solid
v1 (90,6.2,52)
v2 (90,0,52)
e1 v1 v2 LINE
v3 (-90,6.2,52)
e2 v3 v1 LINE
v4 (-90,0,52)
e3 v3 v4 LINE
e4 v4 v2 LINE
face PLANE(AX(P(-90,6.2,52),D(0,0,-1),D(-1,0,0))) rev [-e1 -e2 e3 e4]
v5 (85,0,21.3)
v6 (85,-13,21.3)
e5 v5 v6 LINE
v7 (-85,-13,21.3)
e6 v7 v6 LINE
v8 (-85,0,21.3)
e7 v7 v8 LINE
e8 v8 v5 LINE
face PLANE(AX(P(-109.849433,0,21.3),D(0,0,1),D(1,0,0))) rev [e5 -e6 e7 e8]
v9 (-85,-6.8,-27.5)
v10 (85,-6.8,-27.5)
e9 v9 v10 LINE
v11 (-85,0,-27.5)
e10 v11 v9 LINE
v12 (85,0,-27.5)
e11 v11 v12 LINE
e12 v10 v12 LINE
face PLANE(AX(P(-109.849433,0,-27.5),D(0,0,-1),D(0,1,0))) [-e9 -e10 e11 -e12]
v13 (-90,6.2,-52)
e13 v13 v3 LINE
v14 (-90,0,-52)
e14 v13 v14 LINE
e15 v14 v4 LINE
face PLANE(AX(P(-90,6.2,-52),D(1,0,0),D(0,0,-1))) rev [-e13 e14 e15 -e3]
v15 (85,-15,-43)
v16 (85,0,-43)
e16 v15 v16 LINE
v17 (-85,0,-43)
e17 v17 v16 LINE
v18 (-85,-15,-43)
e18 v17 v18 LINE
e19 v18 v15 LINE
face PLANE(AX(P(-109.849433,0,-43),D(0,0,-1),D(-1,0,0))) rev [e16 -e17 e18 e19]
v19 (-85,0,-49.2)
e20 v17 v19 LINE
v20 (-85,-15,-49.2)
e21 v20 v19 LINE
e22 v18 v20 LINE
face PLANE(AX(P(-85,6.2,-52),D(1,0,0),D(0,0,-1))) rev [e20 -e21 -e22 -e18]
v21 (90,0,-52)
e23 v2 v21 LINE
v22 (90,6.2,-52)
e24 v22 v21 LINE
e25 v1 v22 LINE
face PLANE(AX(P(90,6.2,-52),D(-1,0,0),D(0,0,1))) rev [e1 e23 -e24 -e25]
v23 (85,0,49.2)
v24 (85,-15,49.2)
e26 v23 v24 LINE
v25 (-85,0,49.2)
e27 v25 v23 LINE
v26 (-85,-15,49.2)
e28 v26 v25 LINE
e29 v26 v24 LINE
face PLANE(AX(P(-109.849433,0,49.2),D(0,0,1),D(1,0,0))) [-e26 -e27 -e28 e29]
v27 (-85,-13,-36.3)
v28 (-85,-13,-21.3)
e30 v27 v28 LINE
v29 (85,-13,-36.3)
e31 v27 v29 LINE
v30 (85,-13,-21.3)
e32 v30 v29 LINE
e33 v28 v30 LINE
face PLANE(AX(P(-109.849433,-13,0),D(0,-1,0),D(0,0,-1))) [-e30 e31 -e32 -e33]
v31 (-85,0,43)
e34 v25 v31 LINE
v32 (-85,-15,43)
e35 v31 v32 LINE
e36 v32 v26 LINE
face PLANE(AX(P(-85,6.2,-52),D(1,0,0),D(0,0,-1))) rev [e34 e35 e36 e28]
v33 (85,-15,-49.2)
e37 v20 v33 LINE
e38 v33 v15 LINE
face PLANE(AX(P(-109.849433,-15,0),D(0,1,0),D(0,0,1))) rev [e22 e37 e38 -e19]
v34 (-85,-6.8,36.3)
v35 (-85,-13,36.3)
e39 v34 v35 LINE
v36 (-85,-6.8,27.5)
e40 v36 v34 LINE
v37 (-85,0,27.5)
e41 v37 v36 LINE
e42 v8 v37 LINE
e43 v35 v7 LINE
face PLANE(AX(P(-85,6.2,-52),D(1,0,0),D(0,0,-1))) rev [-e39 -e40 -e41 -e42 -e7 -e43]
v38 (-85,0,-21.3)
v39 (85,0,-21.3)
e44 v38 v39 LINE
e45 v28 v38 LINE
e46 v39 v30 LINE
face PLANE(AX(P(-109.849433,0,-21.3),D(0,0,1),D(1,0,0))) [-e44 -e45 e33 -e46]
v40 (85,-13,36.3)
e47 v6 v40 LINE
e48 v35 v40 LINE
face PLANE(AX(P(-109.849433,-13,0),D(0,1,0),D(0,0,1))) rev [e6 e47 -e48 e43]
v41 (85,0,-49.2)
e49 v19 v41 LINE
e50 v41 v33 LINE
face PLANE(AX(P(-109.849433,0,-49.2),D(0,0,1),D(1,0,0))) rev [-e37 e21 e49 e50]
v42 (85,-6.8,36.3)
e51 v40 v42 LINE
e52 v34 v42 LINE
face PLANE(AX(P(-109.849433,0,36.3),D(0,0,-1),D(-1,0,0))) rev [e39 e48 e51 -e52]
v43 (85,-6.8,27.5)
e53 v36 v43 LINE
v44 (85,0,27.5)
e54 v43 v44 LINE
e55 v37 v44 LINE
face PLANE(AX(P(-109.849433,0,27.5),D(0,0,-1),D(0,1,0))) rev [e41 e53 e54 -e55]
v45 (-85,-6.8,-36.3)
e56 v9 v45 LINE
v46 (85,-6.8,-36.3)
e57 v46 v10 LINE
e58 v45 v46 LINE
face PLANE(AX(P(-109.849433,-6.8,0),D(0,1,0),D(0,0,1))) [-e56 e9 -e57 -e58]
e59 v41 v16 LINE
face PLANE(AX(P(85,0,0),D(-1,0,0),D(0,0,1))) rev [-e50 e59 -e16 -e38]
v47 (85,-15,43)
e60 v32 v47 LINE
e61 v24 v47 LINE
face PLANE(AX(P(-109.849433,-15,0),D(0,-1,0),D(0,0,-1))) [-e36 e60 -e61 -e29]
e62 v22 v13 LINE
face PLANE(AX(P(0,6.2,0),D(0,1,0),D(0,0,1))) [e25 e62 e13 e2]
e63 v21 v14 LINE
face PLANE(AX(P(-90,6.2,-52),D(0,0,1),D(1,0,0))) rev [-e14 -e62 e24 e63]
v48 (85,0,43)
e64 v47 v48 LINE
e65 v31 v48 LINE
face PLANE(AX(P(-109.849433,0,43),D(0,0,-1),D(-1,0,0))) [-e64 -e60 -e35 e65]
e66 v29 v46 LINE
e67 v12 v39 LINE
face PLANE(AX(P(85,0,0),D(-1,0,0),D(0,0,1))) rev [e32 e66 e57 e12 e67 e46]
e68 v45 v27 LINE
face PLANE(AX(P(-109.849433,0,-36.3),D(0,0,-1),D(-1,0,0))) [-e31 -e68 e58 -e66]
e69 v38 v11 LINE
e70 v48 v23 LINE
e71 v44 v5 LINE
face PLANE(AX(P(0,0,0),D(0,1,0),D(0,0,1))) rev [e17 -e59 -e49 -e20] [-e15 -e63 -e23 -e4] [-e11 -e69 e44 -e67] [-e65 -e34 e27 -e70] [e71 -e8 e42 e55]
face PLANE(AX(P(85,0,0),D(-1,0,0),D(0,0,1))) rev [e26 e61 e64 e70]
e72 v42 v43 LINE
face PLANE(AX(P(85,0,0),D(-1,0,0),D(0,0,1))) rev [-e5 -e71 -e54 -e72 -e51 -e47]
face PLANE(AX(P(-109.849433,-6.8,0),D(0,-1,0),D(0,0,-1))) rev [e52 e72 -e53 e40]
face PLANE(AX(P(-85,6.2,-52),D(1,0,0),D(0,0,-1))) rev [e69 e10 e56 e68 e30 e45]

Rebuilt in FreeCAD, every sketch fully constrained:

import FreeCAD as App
import Part
import Sketcher

V = App.Vector


def add_polygon(sketch, points):
    """Adds a closed chain of lines whose ends are joined by coincident constraints."""
    first, n = sketch.GeometryCount, len(points)
    for a, b in zip(points, points[1:] + points[:1]):
        sketch.addGeometry(Part.LineSegment(App.Vector(*a, 0), App.Vector(*b, 0)), False)
    for i in range(n):
        sketch.addConstraint(Sketcher.Constraint("Coincident", first + i, 2, first + (i + 1) % n, 1))

doc = App.newDocument("Part")
params = doc.addObject("Spreadsheet::Sheet", "Params")
for row, (alias, value) in enumerate([
    ("sketch1_width", "180 mm"),
    ("sketch1_height", "104 mm"),
    ("pad1_length", "6.2 mm"),
    ("sketch2_width", "15 mm"),
    ("sketch2_width2", "13 mm"),
    ("sketch2_width3", "6.8 mm"),
    ("pad2_length", "170 mm"),
], start=1):
    params.set(f"A{row}", alias)
    params.set(f"B{row}", "=" + value)
    params.setAlias(f"B{row}", alias)

body = doc.addObject("PartDesign::Body", "Body")

sketch1 = doc.addObject("Sketcher::SketchObject", "Sketch")
body.addObject(sketch1)
sketch1.AttachmentSupport = (doc.XZ_Plane, [""])
sketch1.MapMode = "FlatFace"
add_polygon(sketch1, [(-90, -52), (-90, 52), (90, 52), (90, -52)])
sketch1.addConstraint(Sketcher.Constraint("Vertical", 0))
sketch1.addConstraint(Sketcher.Constraint("Horizontal", 1))
sketch1.addConstraint(Sketcher.Constraint("Vertical", 2))
sketch1.addConstraint(Sketcher.Constraint("Horizontal", 3))
sketch1.addConstraint(Sketcher.Constraint("Symmetric", 0, 2, 2, 2, -1, 1))
sketch1.addConstraint(Sketcher.Constraint("DistanceX", 1, 1, 1, 2, 180.0))
sketch1.addConstraint(Sketcher.Constraint("DistanceY", 0, 1, 0, 2, 104.0))
sketch1.setExpression("Constraints[9]", "Params.sketch1_width")
sketch1.setExpression("Constraints[10]", "Params.sketch1_height")
pad1 = doc.addObject("PartDesign::Pad", "Pad")
body.addObject(pad1)
pad1.Profile = sketch1
pad1.setExpression("Length", "Params.pad1_length")
pad1.Reversed = True

sketch2 = doc.addObject("Sketcher::SketchObject", "Sketch001")
body.addObject(sketch2)
sketch2.AttachmentSupport = (doc.YZ_Plane, [""])
sketch2.MapMode = "FlatFace"
sketch2.AttachmentOffset = App.Placement(V(0, 0, 85), App.Rotation())
add_polygon(sketch2, [(0, 43), (-15, 43), (-15, 49.2), (0, 49.2)])
add_polygon(sketch2, [(-6.8, 36.3), (-6.8, 27.5), (0, 27.5), (0, 21.3), (-13, 21.3), (-13, 36.3)])
add_polygon(sketch2, [(-13, -21.3), (0, -21.3), (0, -27.5), (-6.8, -27.5), (-6.8, -36.3), (-13, -36.3)])
add_polygon(sketch2, [(0, -49.2), (-15, -49.2), (-15, -43), (0, -43)])
sketch2.addConstraint(Sketcher.Constraint("Horizontal", 0))
sketch2.addConstraint(Sketcher.Constraint("Vertical", 1))
sketch2.addConstraint(Sketcher.Constraint("Horizontal", 2))
sketch2.addConstraint(Sketcher.Constraint("Vertical", 3))
sketch2.addConstraint(Sketcher.Constraint("Vertical", 4))
sketch2.addConstraint(Sketcher.Constraint("Horizontal", 5))
sketch2.addConstraint(Sketcher.Constraint("Vertical", 6))
sketch2.addConstraint(Sketcher.Constraint("Horizontal", 7))
sketch2.addConstraint(Sketcher.Constraint("Vertical", 8))
sketch2.addConstraint(Sketcher.Constraint("Horizontal", 9))
sketch2.addConstraint(Sketcher.Constraint("Horizontal", 10))
sketch2.addConstraint(Sketcher.Constraint("Vertical", 11))
sketch2.addConstraint(Sketcher.Constraint("Horizontal", 12))
sketch2.addConstraint(Sketcher.Constraint("Vertical", 13))
sketch2.addConstraint(Sketcher.Constraint("Horizontal", 14))
sketch2.addConstraint(Sketcher.Constraint("Vertical", 15))
sketch2.addConstraint(Sketcher.Constraint("Horizontal", 16))
sketch2.addConstraint(Sketcher.Constraint("Vertical", 17))
sketch2.addConstraint(Sketcher.Constraint("Horizontal", 18))
sketch2.addConstraint(Sketcher.Constraint("Vertical", 19))
sketch2.addConstraint(Sketcher.Constraint("Symmetric", 6, 2, 10, 2, -1, 1))
sketch2.addConstraint(Sketcher.Constraint("Symmetric", 3, 2, 18, 2, -1, 1))
sketch2.addConstraint(Sketcher.Constraint("Symmetric", 5, 2, 11, 2, -1))
sketch2.addConstraint(Sketcher.Constraint("Symmetric", 9, 2, 13, 2, -1))
sketch2.addConstraint(Sketcher.Constraint("Symmetric", 1, 2, 16, 2, -1))
sketch2.addConstraint(Sketcher.Constraint("PointOnObject", 2, 2, -2))
sketch2.addConstraint(Sketcher.Constraint("Vertical", 8, 2, 14, 2))
sketch2.addConstraint(Sketcher.Constraint("Equal", 14, 1))
sketch2.addConstraint(Sketcher.Constraint("Equal", 3, 6))
sketch2.addConstraint(Sketcher.Constraint("Equal", 18, 8))
sketch2.addConstraint(Sketcher.Constraint("DistanceX", 0, 2, 0, 1, 15.0))
sketch2.addConstraint(Sketcher.Constraint("DistanceX", 7, 2, 7, 1, 13.0))
sketch2.addConstraint(Sketcher.Constraint("DistanceX", 5, 1, 5, 2, 6.8))
sketch2.addConstraint(Sketcher.Constraint("DistanceY", -1, 1, 0, 2, 43.0))
sketch2.addConstraint(Sketcher.Constraint("DistanceY", 11, 2, 5, 2, 55.0))
sketch2.setExpression("Constraints[50]", "Params.sketch2_width")
sketch2.setExpression("Constraints[51]", "Params.sketch2_width2")
sketch2.setExpression("Constraints[52]", "Params.sketch2_width3")
pad2 = doc.addObject("PartDesign::Pad", "Pad001")
body.addObject(pad2)
pad2.Profile = sketch2
pad2.setExpression("Length", "Params.pad2_length")
pad2.Reversed = True

doc.recompute()
